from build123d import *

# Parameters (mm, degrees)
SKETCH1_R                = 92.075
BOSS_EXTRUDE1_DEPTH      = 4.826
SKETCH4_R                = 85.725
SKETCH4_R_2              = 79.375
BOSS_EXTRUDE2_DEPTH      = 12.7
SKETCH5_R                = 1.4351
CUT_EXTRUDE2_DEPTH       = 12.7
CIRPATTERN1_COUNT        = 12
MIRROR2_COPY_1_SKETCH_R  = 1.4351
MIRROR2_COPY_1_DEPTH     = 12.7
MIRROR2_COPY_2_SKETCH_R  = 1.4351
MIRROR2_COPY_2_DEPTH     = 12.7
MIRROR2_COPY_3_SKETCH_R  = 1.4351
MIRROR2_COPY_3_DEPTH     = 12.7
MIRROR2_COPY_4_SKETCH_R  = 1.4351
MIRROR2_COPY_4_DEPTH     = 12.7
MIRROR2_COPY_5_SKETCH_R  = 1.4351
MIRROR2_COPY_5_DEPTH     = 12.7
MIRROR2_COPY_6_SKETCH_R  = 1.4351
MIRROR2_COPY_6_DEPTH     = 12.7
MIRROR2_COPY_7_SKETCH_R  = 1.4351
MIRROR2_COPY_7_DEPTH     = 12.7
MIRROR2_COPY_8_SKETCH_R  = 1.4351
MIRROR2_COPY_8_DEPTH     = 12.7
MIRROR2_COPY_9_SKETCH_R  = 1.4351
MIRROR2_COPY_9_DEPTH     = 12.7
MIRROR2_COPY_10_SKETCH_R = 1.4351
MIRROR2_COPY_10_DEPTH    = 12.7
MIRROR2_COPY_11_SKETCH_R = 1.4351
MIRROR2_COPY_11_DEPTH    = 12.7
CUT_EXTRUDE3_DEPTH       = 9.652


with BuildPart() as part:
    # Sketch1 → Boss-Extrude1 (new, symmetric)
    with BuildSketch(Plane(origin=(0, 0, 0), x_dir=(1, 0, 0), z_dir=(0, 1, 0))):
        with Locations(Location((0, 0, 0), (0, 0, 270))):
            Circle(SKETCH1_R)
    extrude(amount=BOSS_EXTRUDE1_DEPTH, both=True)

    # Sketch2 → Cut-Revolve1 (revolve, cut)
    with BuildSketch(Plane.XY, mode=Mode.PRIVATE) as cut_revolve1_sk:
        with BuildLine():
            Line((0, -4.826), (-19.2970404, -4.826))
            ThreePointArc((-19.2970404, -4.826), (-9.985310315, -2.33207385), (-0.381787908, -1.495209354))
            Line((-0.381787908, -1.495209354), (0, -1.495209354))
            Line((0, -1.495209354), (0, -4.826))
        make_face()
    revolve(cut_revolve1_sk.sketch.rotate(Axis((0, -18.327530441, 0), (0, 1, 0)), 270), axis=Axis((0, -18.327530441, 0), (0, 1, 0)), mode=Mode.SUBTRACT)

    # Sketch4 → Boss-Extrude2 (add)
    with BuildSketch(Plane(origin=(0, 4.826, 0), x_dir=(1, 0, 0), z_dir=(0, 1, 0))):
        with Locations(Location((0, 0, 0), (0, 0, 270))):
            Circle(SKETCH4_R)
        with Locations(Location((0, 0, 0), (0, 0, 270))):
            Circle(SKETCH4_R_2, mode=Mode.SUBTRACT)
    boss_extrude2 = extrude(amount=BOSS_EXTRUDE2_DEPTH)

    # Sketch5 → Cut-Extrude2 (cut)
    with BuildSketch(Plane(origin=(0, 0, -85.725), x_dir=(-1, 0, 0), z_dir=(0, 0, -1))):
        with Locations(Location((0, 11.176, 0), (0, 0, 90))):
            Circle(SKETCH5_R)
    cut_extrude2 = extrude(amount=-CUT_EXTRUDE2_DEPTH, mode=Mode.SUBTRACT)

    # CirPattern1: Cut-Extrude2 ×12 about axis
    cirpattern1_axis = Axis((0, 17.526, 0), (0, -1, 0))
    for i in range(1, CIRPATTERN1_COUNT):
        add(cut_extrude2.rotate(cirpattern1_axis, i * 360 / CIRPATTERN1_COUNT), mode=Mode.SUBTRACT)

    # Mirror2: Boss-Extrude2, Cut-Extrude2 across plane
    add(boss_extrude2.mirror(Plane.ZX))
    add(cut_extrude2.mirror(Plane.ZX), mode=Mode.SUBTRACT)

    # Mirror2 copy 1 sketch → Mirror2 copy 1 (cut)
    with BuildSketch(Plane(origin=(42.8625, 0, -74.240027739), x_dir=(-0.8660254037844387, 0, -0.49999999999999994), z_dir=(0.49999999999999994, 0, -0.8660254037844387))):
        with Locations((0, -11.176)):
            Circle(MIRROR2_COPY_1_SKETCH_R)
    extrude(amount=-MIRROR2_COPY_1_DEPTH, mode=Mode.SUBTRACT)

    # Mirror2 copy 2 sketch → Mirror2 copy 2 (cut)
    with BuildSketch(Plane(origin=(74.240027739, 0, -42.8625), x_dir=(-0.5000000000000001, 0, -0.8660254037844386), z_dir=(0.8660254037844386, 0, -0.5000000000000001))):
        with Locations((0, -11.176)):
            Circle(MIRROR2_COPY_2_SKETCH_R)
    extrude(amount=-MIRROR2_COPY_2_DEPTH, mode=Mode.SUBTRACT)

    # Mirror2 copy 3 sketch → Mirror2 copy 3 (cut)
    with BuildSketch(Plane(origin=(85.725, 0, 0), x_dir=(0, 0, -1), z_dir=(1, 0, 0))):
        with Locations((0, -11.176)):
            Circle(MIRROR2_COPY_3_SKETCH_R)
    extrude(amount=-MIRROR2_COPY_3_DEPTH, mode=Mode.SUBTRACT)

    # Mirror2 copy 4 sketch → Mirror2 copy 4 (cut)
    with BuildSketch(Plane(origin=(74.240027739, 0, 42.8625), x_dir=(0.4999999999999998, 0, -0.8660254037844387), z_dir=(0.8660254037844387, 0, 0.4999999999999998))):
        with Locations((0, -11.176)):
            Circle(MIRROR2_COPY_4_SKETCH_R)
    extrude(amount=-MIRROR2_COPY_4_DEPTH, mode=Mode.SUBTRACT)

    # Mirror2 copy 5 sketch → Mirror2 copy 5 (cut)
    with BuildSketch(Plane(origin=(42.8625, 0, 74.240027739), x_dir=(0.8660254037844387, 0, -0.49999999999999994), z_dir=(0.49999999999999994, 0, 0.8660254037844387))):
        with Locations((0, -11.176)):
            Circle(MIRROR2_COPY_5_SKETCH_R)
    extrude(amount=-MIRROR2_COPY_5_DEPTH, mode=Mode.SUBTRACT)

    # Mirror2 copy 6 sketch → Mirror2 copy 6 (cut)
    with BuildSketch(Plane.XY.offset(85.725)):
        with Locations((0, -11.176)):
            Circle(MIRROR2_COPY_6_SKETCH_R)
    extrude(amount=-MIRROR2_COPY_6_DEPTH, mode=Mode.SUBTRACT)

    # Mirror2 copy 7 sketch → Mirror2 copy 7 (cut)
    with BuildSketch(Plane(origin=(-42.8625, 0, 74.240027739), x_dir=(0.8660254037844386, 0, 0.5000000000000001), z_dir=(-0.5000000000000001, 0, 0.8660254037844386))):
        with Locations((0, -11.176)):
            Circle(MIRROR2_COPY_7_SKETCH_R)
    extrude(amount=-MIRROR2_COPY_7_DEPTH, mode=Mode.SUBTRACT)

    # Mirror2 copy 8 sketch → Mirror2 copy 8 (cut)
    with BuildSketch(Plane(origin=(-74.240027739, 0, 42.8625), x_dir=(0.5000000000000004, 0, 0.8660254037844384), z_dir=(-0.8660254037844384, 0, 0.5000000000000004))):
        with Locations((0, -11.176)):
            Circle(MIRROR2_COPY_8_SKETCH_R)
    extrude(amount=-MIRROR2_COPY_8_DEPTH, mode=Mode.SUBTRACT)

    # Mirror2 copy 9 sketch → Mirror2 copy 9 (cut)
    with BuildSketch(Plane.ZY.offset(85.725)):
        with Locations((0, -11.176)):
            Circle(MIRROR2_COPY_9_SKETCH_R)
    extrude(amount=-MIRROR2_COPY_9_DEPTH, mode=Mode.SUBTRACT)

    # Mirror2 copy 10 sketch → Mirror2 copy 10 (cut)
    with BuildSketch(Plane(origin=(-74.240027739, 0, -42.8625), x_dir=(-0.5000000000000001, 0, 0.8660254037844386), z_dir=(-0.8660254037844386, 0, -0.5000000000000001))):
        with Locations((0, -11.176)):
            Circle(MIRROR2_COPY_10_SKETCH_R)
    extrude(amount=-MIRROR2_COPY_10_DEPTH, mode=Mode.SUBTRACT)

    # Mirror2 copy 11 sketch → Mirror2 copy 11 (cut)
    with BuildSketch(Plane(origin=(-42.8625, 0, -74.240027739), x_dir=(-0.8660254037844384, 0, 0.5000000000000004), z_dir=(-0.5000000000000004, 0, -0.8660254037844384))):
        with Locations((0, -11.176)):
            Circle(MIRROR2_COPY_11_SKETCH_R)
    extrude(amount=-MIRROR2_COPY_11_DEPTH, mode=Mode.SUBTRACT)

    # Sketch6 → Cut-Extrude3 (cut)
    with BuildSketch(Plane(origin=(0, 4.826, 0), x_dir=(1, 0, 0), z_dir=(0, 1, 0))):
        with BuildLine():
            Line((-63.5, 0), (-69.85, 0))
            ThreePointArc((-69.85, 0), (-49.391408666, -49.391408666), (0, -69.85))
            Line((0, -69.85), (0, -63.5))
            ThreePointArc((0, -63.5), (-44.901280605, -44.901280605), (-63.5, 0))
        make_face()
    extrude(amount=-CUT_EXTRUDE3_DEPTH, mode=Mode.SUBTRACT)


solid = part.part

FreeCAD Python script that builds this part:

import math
import FreeCAD as App
import Part
import Sketcher

V = App.Vector
Q = App.Units.Quantity

doc = App.newDocument("Part")
body = doc.addObject("PartDesign::Body", "Body")

# Sketch on XZ plane
sketch1 = body.newObject("Sketcher::SketchObject", "Sketch")
sketch1.AttachmentSupport = (doc.getObject("XZ_Plane"), [""])
sketch1.MapMode = "FlatFace"
sketch1.addGeometry(Part.Circle(V(0, 0, 0), V(0, 0, 1), 92.075), False)
sketch1.addConstraint([
    Sketcher.Constraint("Coincident", 0, 3, -1, 1),
    Sketcher.Constraint("Diameter", 0, Q("7.25 in")),
])
pad1 = body.newObject("PartDesign::Pad", "Pad")
pad1.Profile = sketch1
pad1.Length = Q("0.38 in")
pad1.Midplane = True

# Sketch on XY plane
sketch2 = body.newObject("Sketcher::SketchObject", "Sketch001")
sketch2.AttachmentSupport = (doc.getObject("XY_Plane"), [""])
sketch2.MapMode = "FlatFace"
sketch2.addGeometry([
    Part.LineSegment(V(-19.29704, -4.826, 0), V(0, -4.826, 0)),
    Part.LineSegment(V(0, -4.826, 0), V(0, -1.495209, 0)),
    Part.LineSegment(V(0, -1.495209, 0), V(-0.381788, -1.495209, 0)),
    Part.ArcOfCircle(Part.Circle(V(-0.407172, -56.725438, 0), V(0, 0, 1), 55.230234), math.radians(89.973667), math.radians(110.000018)),
], False)
sketch2.addConstraint([
    Sketcher.Constraint("Coincident", 0, 2, 1, 1),
    Sketcher.Constraint("Coincident", 1, 2, 2, 1),
    Sketcher.Constraint("Coincident", 2, 2, 3, 1),
    Sketcher.Constraint("Coincident", 3, 2, 0, 1),
    Sketcher.Constraint("Horizontal", 0),
    Sketcher.Constraint("Vertical", 1),
    Sketcher.Constraint("Horizontal", 2),
    Sketcher.Constraint("PointOnObject", 0, 2, -2),
    Sketcher.Constraint("DistanceY", 0, 2, -1, 1, Q("0.19 in")),
    Sketcher.Constraint("Radius", 3, Q("55.230234 mm")),
    Sketcher.Constraint("DistanceX", 0, 1, 0, 2, Q("19.29704 mm")),
    Sketcher.Constraint("DistanceY", 1, 1, 1, 2, Q("3.330791 mm")),
    Sketcher.Constraint("DistanceX", 2, 2, 2, 1, Q("0.381788 mm")),
])
groove = body.newObject("PartDesign::Groove", "Groove")
groove.Profile = sketch2
groove.ReferenceAxis = (sketch2, ["V_Axis"])
groove.Angle = 360

# Sketch on XZ plane
sketch3 = body.newObject("Sketcher::SketchObject", "Sketch002")
sketch3.AttachmentSupport = (doc.getObject("XZ_Plane"), [""])
sketch3.MapMode = "FlatFace"
sketch3.AttachmentOffset = App.Placement(V(0, 0, -0.19 * 25.4), App.Rotation())
sketch3.addGeometry([
    Part.Circle(V(0, 0, 0), V(0, 0, 1), 85.725),
    Part.Circle(V(0, 0, 0), V(0, 0, 1), 79.375),
], False)
sketch3.addConstraint([
    Sketcher.Constraint("Coincident", 0, 3, -1, 1),
    Sketcher.Constraint("Coincident", 1, 3, -1, 1),
    Sketcher.Constraint("Diameter", 0, Q("6.75 in")),
    Sketcher.Constraint("Diameter", 1, Q("6.25 in")),
])
pad2 = body.newObject("PartDesign::Pad", "Pad001")
pad2.Profile = sketch3
pad2.Length = Q("0.5 in")
pad2.Reversed = True

# Sketch on XY plane
sketch4 = body.newObject("Sketcher::SketchObject", "Sketch003")
sketch4.AttachmentSupport = (doc.getObject("XY_Plane"), [""])
sketch4.MapMode = "FlatFace"
sketch4.AttachmentOffset = App.Placement(V(0, 0, -3.375 * 25.4), App.Rotation())
sketch4.addGeometry(Part.Circle(V(0, 11.176, 0), V(0, 0, 1), 1.4351), False)
sketch4.addConstraint([
    Sketcher.Constraint("PointOnObject", 0, 3, -2),
    Sketcher.Constraint("Diameter", 0, Q("0.113 in")),
    Sketcher.Constraint("DistanceY", -1, 1, 0, 3, Q("0.44 in")),
])
pocket1 = body.newObject("PartDesign::Pocket", "Pocket")
pocket1.Profile = sketch4
pocket1.Length = Q("0.5 in")
pocket1.Reversed = True
doc.recompute()

polarpattern = body.newObject("PartDesign::PolarPattern", "PolarPattern")
polarpattern.Originals = [pocket1]
polarpattern.Axis = (doc.getObject("Y_Axis"), [""])
polarpattern.Angle = 360
polarpattern.Occurrences = 12
body.Tip = polarpattern
doc.recompute()

mirrored = body.newObject("PartDesign::Mirrored", "Mirrored")
mirrored.Originals = [pad2, pocket1]
mirrored.MirrorPlane = (doc.getObject("XZ_Plane"), [""])
body.Tip = mirrored

# Sketch on an angled plane
sketch5 = body.newObject("Sketcher::SketchObject", "Sketch004")
sketch5.Placement = App.Placement(V(42.8625, 0, -74.240028), App.Rotation(V(-0.866025404, 0, -0.5), V(0, 1, 0), V(0.5, 0, -0.866025404), "ZXY"))
sketch5.addGeometry(Part.Circle(V(0, -11.176, 0), V(0, 0, 1), 1.4351), False)
sketch5.addConstraint([
    Sketcher.Constraint("PointOnObject", 0, 3, -2),
    Sketcher.Constraint("Diameter", 0, Q("0.113 in")),
    Sketcher.Constraint("DistanceY", 0, 3, -1, 1, Q("0.44 in")),
])
pocket2 = body.newObject("PartDesign::Pocket", "Pocket001")
pocket2.Profile = sketch5
pocket2.Length = Q("0.5 in")

# Sketch on an angled plane
sketch6 = body.newObject("Sketcher::SketchObject", "Sketch005")
sketch6.Placement = App.Placement(V(74.240028, 0, -42.8625), App.Rotation(V(-0.5, 0, -0.866025404), V(0, 1, 0), V(0.866025404, 0, -0.5), "ZXY"))
sketch6.addGeometry(Part.Circle(V(0, -11.176, 0), V(0, 0, 1), 1.4351), False)
sketch6.addConstraint([
    Sketcher.Constraint("PointOnObject", 0, 3, -2),
    Sketcher.Constraint("Diameter", 0, Q("0.113 in")),
    Sketcher.Constraint("DistanceY", 0, 3, -1, 1, Q("0.44 in")),
])
pocket3 = body.newObject("PartDesign::Pocket", "Pocket002")
pocket3.Profile = sketch6
pocket3.Length = Q("0.5 in")

# Sketch on YZ plane
sketch7 = body.newObject("Sketcher::SketchObject", "Sketch006")
sketch7.AttachmentSupport = (doc.getObject("YZ_Plane"), [""])
sketch7.MapMode = "FlatFace"
sketch7.AttachmentOffset = App.Placement(V(0, 0, 3.375 * 25.4), App.Rotation())
sketch7.addGeometry(Part.Circle(V(-11.176, 0, 0), V(0, 0, 1), 1.4351), False)
sketch7.addConstraint([
    Sketcher.Constraint("PointOnObject", 0, 3, -1),
    Sketcher.Constraint("Diameter", 0, Q("0.113 in")),
    Sketcher.Constraint("DistanceX", 0, 3, -1, 1, Q("0.44 in")),
])
pocket4 = body.newObject("PartDesign::Pocket", "Pocket003")
pocket4.Profile = sketch7
pocket4.Length = Q("0.5 in")

# Sketch on an angled plane
sketch8 = body.newObject("Sketcher::SketchObject", "Sketch007")
sketch8.Placement = App.Placement(V(74.240028, 0, 42.8625), App.Rotation(V(0.5, 0, -0.866025404), V(0, 1, 0), V(0.866025404, 0, 0.5), "ZXY"))
sketch8.addGeometry(Part.Circle(V(0, -11.176, 0), V(0, 0, 1), 1.4351), False)
sketch8.addConstraint([
    Sketcher.Constraint("PointOnObject", 0, 3, -2),
    Sketcher.Constraint("Diameter", 0, Q("0.113 in")),
    Sketcher.Constraint("DistanceY", 0, 3, -1, 1, Q("0.44 in")),
])
pocket5 = body.newObject("PartDesign::Pocket", "Pocket004")
pocket5.Profile = sketch8
pocket5.Length = Q("0.5 in")

# Sketch on an angled plane
sketch9 = body.newObject("Sketcher::SketchObject", "Sketch008")
sketch9.Placement = App.Placement(V(42.8625, 0, 74.240028), App.Rotation(V(0.866025404, 0, -0.5), V(0, 1, 0), V(0.5, 0, 0.866025404), "ZXY"))
sketch9.addGeometry(Part.Circle(V(0, -11.176, 0), V(0, 0, 1), 1.4351), False)
sketch9.addConstraint([
    Sketcher.Constraint("PointOnObject", 0, 3, -2),
    Sketcher.Constraint("Diameter", 0, Q("0.113 in")),
    Sketcher.Constraint("DistanceY", 0, 3, -1, 1, Q("0.44 in")),
])
pocket6 = body.newObject("PartDesign::Pocket", "Pocket005")
pocket6.Profile = sketch9
pocket6.Length = Q("0.5 in")

# Sketch on XY plane
sketch10 = body.newObject("Sketcher::SketchObject", "Sketch009")
sketch10.AttachmentSupport = (doc.getObject("XY_Plane"), [""])
sketch10.MapMode = "FlatFace"
sketch10.AttachmentOffset = App.Placement(V(0, 0, 3.375 * 25.4), App.Rotation())
sketch10.addGeometry(Part.Circle(V(0, -11.176, 0), V(0, 0, 1), 1.4351), False)
sketch10.addConstraint([
    Sketcher.Constraint("PointOnObject", 0, 3, -2),
    Sketcher.Constraint("Diameter", 0, Q("0.113 in")),
    Sketcher.Constraint("DistanceY", 0, 3, -1, 1, Q("0.44 in")),
])
pocket7 = body.newObject("PartDesign::Pocket", "Pocket006")
pocket7.Profile = sketch10
pocket7.Length = Q("0.5 in")

# Sketch on an angled plane
sketch11 = body.newObject("Sketcher::SketchObject", "Sketch010")
sketch11.Placement = App.Placement(V(-42.8625, 0, 74.240028), App.Rotation(V(0.866025404, 0, 0.5), V(0, 1, 0), V(-0.5, 0, 0.866025404), "ZXY"))
sketch11.addGeometry(Part.Circle(V(0, -11.176, 0), V(0, 0, 1), 1.4351), False)
sketch11.addConstraint([
    Sketcher.Constraint("PointOnObject", 0, 3, -2),
    Sketcher.Constraint("Diameter", 0, Q("0.113 in")),
    Sketcher.Constraint("DistanceY", 0, 3, -1, 1, Q("0.44 in")),
])
pocket8 = body.newObject("PartDesign::Pocket", "Pocket007")
pocket8.Profile = sketch11
pocket8.Length = Q("0.5 in")

# Sketch on an angled plane
sketch12 = body.newObject("Sketcher::SketchObject", "Sketch011")
sketch12.Placement = App.Placement(V(-74.240028, 0, 42.8625), App.Rotation(V(0.5, 0, 0.866025404), V(0, 1, 0), V(-0.866025404, 0, 0.5), "ZXY"))
sketch12.addGeometry(Part.Circle(V(0, -11.176, 0), V(0, 0, 1), 1.4351), False)
sketch12.addConstraint([
    Sketcher.Constraint("PointOnObject", 0, 3, -2),
    Sketcher.Constraint("Diameter", 0, Q("0.113 in")),
    Sketcher.Constraint("DistanceY", 0, 3, -1, 1, Q("0.44 in")),
])
pocket9 = body.newObject("PartDesign::Pocket", "Pocket008")
pocket9.Profile = sketch12
pocket9.Length = Q("0.5 in")

# Sketch on YZ plane
sketch13 = body.newObject("Sketcher::SketchObject", "Sketch012")
sketch13.AttachmentSupport = (doc.getObject("YZ_Plane"), [""])
sketch13.MapMode = "FlatFace"
sketch13.AttachmentOffset = App.Placement(V(0, 0, -3.375 * 25.4), App.Rotation())
sketch13.addGeometry(Part.Circle(V(-11.176, 0, 0), V(0, 0, 1), 1.4351), False)
sketch13.addConstraint([
    Sketcher.Constraint("PointOnObject", 0, 3, -1),
    Sketcher.Constraint("Diameter", 0, Q("0.113 in")),
    Sketcher.Constraint("DistanceX", 0, 3, -1, 1, Q("0.44 in")),
])
pocket10 = body.newObject("PartDesign::Pocket", "Pocket009")
pocket10.Profile = sketch13
pocket10.Length = Q("0.5 in")
pocket10.Reversed = True

# Sketch on an angled plane
sketch14 = body.newObject("Sketcher::SketchObject", "Sketch013")
sketch14.Placement = App.Placement(V(-74.240028, 0, -42.8625), App.Rotation(V(-0.5, 0, 0.866025404), V(0, 1, 0), V(-0.866025404, 0, -0.5), "ZXY"))
sketch14.addGeometry(Part.Circle(V(0, -11.176, 0), V(0, 0, 1), 1.4351), False)
sketch14.addConstraint([
    Sketcher.Constraint("PointOnObject", 0, 3, -2),
    Sketcher.Constraint("Diameter", 0, Q("0.113 in")),
    Sketcher.Constraint("DistanceY", 0, 3, -1, 1, Q("0.44 in")),
])
pocket11 = body.newObject("PartDesign::Pocket", "Pocket010")
pocket11.Profile = sketch14
pocket11.Length = Q("0.5 in")

# Sketch on an angled plane
sketch15 = body.newObject("Sketcher::SketchObject", "Sketch014")
sketch15.Placement = App.Placement(V(-42.8625, 0, -74.240028), App.Rotation(V(-0.866025404, 0, 0.5), V(0, 1, 0), V(-0.5, 0, -0.866025404), "ZXY"))
sketch15.addGeometry(Part.Circle(V(0, -11.176, 0), V(0, 0, 1), 1.4351), False)
sketch15.addConstraint([
    Sketcher.Constraint("PointOnObject", 0, 3, -2),
    Sketcher.Constraint("Diameter", 0, Q("0.113 in")),
    Sketcher.Constraint("DistanceY", 0, 3, -1, 1, Q("0.44 in")),
])
pocket12 = body.newObject("PartDesign::Pocket", "Pocket011")
pocket12.Profile = sketch15
pocket12.Length = Q("0.5 in")

# Sketch on XZ plane
sketch16 = body.newObject("Sketcher::SketchObject", "Sketch015")
sketch16.AttachmentSupport = (doc.getObject("XZ_Plane"), [""])
sketch16.MapMode = "FlatFace"
sketch16.AttachmentOffset = App.Placement(V(0, 0, -0.19 * 25.4), App.Rotation())
sketch16.addGeometry([
    Part.LineSegment(V(-63.5, 0, 0), V(-69.85, 0, 0)),
    Part.ArcOfCircle(Part.Circle(V(0, 0, 0), V(0, 0, 1), 69.85), math.radians(90), math.radians(180)),
    Part.LineSegment(V(0, 69.85, 0), V(0, 63.5, 0)),
    Part.ArcOfCircle(Part.Circle(V(0, 0, 0), V(0, 0, 1), 63.5), math.radians(90), math.radians(180)),
], False)
sketch16.addConstraint([
    Sketcher.Constraint("Coincident", 0, 2, 1, 2),
    Sketcher.Constraint("Coincident", 1, 1, 2, 1),
    Sketcher.Constraint("Coincident", 2, 2, 3, 1),
    Sketcher.Constraint("Coincident", 3, 2, 0, 1),
    Sketcher.Constraint("Horizontal", 0),
    Sketcher.Constraint("Vertical", 2),
    Sketcher.Constraint("Coincident", 1, 3, -1, 1),
    Sketcher.Constraint("Coincident", 3, 3, -1, 1),
    Sketcher.Constraint("PointOnObject", 0, 2, -1),
    Sketcher.Constraint("PointOnObject", 1, 1, -2),
    Sketcher.Constraint("Radius", 3, Q("2.5 in")),
    Sketcher.Constraint("Radius", 1, Q("2.75 in")),
])
pocket13 = body.newObject("PartDesign::Pocket", "Pocket012")
pocket13.Profile = sketch16
pocket13.Length = Q("0.38 in")
pocket13.Reversed = True

doc.recompute()
